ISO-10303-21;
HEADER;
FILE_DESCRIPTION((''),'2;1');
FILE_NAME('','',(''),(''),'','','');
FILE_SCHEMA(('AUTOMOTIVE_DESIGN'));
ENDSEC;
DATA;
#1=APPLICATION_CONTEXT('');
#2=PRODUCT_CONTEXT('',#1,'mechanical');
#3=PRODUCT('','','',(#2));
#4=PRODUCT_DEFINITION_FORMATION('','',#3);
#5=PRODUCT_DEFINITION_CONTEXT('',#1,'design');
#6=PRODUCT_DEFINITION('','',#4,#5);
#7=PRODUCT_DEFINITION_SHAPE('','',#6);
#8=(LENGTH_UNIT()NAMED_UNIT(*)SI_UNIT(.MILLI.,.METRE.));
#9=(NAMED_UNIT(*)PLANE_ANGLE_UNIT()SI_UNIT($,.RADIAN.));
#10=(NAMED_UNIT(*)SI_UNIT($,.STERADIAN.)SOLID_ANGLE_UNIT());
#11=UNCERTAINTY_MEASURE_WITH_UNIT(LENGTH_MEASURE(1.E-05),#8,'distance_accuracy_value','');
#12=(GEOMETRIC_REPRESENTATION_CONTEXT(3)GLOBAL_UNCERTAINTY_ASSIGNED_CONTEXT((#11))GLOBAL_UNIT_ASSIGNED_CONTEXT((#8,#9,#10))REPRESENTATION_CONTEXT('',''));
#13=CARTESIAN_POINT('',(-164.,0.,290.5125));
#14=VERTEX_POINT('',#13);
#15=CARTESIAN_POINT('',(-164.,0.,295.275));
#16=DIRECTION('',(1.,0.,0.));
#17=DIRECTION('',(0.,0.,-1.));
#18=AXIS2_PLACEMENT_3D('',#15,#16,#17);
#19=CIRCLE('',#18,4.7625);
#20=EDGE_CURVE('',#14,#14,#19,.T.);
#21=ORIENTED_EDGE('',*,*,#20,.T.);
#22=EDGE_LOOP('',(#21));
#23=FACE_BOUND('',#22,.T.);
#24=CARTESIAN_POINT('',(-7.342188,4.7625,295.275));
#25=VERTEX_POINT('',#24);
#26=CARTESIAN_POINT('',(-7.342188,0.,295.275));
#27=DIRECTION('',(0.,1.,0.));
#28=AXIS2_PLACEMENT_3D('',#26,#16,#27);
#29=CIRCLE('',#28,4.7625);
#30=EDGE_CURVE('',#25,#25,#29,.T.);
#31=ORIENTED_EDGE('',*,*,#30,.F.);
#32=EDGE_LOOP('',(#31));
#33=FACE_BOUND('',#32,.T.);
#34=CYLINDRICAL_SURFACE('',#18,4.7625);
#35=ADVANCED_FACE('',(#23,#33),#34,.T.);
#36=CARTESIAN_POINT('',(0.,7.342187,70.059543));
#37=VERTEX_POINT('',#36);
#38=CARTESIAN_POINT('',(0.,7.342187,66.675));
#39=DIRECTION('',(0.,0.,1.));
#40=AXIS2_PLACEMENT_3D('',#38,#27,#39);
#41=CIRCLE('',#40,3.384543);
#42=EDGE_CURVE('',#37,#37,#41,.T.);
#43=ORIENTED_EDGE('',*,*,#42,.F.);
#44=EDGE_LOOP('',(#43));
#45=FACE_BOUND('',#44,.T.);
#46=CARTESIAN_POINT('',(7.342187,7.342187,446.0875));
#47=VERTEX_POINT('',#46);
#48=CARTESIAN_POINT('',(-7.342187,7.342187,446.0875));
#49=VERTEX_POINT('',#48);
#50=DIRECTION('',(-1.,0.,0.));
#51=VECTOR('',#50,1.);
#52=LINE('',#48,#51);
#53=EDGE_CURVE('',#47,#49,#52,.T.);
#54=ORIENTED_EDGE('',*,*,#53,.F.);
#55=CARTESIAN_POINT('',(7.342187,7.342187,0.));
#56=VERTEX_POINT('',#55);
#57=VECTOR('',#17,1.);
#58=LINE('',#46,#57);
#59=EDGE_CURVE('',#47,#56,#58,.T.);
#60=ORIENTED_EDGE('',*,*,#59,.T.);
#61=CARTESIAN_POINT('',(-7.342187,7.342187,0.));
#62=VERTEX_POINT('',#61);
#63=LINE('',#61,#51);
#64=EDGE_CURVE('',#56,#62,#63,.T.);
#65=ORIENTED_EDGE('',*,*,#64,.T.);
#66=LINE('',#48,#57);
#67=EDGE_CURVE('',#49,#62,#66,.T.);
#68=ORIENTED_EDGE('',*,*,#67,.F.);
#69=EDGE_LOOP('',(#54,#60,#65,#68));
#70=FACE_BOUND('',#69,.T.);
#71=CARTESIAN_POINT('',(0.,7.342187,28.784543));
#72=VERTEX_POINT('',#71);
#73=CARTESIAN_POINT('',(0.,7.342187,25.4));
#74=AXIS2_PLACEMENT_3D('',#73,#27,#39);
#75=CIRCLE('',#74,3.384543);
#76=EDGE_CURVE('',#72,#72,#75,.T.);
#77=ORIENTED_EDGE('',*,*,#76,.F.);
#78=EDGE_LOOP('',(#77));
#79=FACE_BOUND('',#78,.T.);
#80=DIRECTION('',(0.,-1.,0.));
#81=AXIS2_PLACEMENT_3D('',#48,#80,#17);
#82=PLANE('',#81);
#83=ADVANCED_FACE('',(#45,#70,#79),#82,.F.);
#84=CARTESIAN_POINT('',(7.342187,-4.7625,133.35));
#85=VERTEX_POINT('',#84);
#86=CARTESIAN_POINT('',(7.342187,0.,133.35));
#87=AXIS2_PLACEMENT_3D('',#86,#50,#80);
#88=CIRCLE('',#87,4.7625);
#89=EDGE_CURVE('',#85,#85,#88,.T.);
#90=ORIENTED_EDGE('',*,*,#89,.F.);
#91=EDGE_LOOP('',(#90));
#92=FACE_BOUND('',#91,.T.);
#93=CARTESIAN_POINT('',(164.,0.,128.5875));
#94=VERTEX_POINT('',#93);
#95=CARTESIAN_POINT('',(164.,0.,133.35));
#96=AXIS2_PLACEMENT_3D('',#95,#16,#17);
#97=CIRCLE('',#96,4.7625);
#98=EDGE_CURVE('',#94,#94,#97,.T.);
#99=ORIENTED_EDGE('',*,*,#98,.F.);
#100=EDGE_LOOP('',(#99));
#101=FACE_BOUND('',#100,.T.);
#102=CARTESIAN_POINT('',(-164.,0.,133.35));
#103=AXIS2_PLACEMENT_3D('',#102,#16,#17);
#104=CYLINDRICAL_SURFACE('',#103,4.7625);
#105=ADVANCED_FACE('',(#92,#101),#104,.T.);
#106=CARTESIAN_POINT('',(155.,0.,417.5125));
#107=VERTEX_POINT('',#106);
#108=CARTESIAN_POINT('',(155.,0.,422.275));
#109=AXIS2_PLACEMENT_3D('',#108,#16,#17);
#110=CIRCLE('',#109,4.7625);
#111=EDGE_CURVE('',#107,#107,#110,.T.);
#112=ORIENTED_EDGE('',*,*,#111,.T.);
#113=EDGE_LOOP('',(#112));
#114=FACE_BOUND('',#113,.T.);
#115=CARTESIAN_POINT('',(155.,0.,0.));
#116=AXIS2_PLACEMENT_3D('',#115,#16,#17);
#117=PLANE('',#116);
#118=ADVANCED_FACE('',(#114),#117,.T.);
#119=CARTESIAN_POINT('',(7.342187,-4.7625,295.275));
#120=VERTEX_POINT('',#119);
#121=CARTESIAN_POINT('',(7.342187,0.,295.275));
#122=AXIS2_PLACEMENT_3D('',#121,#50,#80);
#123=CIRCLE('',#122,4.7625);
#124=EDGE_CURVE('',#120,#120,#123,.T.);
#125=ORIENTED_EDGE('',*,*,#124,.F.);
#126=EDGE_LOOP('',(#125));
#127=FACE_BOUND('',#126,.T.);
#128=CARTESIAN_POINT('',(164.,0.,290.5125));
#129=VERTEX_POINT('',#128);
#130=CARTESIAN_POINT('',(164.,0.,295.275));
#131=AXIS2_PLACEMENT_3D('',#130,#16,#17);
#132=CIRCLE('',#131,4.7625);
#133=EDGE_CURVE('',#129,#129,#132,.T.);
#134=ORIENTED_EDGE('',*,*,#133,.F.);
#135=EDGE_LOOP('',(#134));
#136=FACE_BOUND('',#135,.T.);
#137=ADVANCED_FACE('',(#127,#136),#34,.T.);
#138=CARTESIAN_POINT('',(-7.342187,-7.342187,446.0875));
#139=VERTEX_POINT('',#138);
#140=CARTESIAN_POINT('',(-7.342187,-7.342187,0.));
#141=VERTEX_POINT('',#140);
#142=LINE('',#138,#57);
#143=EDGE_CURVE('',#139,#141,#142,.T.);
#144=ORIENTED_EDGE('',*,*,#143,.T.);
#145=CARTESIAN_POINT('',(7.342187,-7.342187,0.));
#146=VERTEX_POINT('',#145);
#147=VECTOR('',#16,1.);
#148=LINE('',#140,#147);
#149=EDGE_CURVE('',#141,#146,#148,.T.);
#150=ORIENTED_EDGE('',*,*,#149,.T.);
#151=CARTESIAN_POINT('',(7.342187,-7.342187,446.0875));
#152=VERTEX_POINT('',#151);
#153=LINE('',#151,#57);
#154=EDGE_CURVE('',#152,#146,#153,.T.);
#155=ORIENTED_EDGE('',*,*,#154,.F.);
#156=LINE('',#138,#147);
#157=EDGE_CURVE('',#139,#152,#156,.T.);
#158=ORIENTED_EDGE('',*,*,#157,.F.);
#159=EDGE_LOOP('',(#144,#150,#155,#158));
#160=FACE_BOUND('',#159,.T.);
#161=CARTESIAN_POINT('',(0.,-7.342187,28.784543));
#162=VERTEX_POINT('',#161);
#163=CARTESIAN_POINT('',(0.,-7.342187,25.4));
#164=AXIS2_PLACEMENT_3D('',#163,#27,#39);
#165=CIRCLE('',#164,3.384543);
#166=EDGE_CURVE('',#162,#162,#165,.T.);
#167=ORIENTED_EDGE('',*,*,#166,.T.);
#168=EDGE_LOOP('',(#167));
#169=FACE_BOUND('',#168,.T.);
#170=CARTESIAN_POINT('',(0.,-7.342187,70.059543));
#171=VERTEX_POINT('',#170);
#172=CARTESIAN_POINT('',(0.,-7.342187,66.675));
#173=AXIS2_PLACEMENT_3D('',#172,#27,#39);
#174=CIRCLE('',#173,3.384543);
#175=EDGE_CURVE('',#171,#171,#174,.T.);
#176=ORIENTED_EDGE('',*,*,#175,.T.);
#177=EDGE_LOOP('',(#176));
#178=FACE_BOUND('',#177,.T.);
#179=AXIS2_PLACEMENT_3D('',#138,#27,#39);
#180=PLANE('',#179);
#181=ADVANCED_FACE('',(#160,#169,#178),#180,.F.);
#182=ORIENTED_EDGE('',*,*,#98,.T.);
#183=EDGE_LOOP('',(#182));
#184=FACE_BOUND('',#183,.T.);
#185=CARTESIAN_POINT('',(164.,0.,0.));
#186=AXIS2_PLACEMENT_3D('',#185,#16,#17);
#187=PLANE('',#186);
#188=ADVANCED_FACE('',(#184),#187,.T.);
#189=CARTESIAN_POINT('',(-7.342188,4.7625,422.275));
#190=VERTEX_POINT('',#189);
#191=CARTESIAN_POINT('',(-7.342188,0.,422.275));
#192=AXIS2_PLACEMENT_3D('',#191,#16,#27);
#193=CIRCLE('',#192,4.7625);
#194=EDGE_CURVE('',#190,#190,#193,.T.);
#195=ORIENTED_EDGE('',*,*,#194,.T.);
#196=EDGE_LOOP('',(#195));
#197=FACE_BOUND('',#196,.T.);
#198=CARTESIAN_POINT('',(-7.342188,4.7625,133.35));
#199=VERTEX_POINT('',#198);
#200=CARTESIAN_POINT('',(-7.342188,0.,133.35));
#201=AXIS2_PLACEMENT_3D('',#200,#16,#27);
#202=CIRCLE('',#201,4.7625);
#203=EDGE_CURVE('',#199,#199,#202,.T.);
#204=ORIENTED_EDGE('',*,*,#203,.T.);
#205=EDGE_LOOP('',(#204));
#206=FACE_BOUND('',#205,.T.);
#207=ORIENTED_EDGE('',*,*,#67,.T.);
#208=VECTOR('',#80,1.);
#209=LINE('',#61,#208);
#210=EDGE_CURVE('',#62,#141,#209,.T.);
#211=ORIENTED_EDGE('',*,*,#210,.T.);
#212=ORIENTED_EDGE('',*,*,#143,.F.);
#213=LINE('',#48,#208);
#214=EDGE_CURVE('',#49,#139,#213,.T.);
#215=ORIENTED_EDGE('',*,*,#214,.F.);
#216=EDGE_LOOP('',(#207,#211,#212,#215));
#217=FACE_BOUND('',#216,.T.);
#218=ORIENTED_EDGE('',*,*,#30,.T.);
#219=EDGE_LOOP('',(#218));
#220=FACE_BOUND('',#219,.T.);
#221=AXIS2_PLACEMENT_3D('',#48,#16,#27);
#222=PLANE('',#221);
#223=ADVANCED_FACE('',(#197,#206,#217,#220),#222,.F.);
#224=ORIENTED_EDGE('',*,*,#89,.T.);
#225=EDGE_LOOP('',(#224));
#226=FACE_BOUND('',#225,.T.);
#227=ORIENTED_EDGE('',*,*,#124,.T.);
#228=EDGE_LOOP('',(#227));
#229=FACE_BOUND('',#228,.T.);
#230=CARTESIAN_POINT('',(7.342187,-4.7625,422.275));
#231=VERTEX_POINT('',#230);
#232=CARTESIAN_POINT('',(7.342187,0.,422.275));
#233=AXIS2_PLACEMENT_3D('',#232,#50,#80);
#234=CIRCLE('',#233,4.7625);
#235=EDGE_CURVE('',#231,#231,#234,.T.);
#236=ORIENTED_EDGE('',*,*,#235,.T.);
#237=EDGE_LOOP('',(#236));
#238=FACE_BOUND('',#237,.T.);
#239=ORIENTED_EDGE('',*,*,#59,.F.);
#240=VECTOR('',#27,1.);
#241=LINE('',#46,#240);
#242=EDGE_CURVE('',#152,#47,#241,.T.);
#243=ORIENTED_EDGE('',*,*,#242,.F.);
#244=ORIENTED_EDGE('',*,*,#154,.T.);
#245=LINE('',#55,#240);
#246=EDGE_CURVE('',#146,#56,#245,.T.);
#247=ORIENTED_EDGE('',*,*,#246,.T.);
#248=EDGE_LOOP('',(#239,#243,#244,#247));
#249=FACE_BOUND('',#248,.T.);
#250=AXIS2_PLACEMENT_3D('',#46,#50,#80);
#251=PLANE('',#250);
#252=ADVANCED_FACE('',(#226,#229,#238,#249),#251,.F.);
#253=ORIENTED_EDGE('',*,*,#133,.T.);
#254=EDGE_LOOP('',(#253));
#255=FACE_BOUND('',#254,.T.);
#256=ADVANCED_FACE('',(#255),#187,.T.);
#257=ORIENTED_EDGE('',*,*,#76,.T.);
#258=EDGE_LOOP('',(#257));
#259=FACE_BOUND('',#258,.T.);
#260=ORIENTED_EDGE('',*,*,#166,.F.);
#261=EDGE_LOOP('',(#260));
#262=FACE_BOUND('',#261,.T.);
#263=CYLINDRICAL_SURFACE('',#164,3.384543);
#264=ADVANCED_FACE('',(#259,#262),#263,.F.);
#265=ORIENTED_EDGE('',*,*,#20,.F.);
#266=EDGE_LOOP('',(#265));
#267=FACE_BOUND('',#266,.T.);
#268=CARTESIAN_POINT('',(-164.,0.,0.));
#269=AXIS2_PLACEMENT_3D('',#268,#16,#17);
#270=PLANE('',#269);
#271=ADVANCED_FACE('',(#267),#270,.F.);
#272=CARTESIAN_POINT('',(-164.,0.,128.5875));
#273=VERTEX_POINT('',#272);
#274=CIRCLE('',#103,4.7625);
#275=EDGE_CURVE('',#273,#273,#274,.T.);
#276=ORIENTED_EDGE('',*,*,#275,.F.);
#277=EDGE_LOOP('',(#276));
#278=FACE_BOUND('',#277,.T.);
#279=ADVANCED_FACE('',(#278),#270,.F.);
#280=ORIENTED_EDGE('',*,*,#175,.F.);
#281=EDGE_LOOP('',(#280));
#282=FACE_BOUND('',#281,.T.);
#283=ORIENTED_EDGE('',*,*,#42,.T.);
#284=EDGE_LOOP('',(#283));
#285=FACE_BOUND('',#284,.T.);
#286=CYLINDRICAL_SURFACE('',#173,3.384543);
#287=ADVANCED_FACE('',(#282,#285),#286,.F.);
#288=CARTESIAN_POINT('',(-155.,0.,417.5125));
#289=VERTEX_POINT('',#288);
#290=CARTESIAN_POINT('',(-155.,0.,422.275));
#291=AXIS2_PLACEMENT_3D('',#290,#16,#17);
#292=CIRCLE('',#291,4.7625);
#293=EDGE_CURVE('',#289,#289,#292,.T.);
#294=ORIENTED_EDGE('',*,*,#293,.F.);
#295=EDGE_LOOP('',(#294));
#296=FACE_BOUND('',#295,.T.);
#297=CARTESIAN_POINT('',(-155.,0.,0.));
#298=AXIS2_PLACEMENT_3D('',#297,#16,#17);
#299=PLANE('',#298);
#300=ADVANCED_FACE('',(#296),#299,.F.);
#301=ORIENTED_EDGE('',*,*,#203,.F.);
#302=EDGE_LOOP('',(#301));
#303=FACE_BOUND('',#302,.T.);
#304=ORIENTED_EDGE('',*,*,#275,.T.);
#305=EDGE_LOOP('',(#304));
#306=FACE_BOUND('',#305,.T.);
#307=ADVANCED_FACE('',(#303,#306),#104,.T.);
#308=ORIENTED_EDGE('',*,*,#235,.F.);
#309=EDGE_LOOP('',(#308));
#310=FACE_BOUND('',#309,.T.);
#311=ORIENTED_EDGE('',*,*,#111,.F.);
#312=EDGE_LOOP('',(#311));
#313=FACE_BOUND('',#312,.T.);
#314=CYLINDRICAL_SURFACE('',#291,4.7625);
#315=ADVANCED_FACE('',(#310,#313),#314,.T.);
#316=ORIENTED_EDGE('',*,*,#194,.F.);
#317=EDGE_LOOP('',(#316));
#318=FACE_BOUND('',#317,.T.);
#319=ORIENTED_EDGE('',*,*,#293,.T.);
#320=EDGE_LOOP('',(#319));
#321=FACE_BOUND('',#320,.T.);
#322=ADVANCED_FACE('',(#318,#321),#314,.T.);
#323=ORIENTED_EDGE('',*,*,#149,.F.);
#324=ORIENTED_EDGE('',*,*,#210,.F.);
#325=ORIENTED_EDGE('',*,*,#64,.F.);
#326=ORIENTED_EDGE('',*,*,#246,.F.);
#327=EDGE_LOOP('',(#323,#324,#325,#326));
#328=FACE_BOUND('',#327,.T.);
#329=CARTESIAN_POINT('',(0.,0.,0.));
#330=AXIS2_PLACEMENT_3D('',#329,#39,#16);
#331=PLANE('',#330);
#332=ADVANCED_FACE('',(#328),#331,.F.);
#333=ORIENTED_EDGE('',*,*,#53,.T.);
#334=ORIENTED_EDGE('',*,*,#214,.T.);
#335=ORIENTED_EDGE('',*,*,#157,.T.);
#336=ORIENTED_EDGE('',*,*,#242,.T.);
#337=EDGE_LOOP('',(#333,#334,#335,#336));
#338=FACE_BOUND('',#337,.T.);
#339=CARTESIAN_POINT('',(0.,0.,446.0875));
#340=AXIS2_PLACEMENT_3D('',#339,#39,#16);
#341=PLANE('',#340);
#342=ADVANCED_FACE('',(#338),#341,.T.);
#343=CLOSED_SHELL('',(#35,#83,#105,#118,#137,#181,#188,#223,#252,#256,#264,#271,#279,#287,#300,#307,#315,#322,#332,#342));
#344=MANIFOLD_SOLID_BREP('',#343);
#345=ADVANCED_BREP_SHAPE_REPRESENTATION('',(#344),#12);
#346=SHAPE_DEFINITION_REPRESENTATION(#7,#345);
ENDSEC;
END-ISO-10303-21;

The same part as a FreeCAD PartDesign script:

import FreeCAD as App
import Part
import Sketcher
Q = App.Units.Quantity


def add_polygon(sketch, points):
    """Adds a closed chain of lines whose ends are joined by coincident constraints."""
    first, n = sketch.GeometryCount, len(points)
    for a, b in zip(points, points[1:] + points[:1]):
        sketch.addGeometry(Part.LineSegment(App.Vector(*a, 0), App.Vector(*b, 0)), False)
    for i in range(n):
        sketch.addConstraint(Sketcher.Constraint("Coincident", first + i, 2, first + (i + 1) % n, 1))

doc = App.newDocument("Part")
body = doc.addObject("PartDesign::Body", "Body")

# Sketch on XY plane
sketch1 = body.newObject("Sketcher::SketchObject", "Sketch")
sketch1.AttachmentSupport = (doc.getObject("XY_Plane"), [""])
sketch1.MapMode = "FlatFace"
add_polygon(sketch1, [(-7, 7), (-7, -7), (7, -7), (7, 7)])  # lines 0-3
sketch1.addConstraint([
    Sketcher.Constraint("Vertical", 0),
    Sketcher.Constraint("Horizontal", 1),
    Sketcher.Constraint("Vertical", 2),
    Sketcher.Constraint("Horizontal", 3),
    Sketcher.Constraint("Symmetric", 0, 2, 2, 2, -1, 1),
    Sketcher.Constraint("Equal", 3, 0),
    Sketcher.Constraint("DistanceX", 1, 1, 1, 2, Q("0.578125 in")),
])
pad1 = body.newObject("PartDesign::Pad", "Pad")
pad1.Profile = sketch1
pad1.Length = Q("17.5625 in")

# Sketch on XZ plane
sketch2 = body.newObject("Sketcher::SketchObject", "Sketch001")
sketch2.AttachmentSupport = (doc.getObject("XZ_Plane"), [""])
sketch2.MapMode = "FlatFace"
sketch2.AttachmentOffset = App.Placement(App.Vector(0, 0, -7.342187), App.Rotation())
sketch2.addGeometry([
    Part.Circle(App.Vector(0, 25.4, 0), App.Vector(0, 0, 1), 3.4),
    Part.Circle(App.Vector(0, 66.7, 0), App.Vector(0, 0, 1), 3.4),
], False)
sketch2.addConstraint([
    Sketcher.Constraint("Equal", 0, 1),
    Sketcher.Constraint("PointOnObject", 0, 3, -2),
    Sketcher.Constraint("PointOnObject", 1, 3, -2),
    Sketcher.Constraint("DistanceY", -1, 1, 0, 3, Q("1 in")),
    Sketcher.Constraint("DistanceY", -1, 1, 1, 3, Q("2.625 in")),
    Sketcher.Constraint("Diameter", 0, 6.769086),
])
pocket1 = body.newObject("PartDesign::Pocket", "Pocket")
pocket1.Profile = sketch2
pocket1.Type = "ThroughAll"
pocket1.Reversed = True

# Sketch on YZ plane
sketch3 = body.newObject("Sketcher::SketchObject", "Sketch002")
sketch3.AttachmentSupport = (doc.getObject("YZ_Plane"), [""])
sketch3.MapMode = "FlatFace"
sketch3.addGeometry(Part.Circle(App.Vector(0, 422.3, 0), App.Vector(0, 0, 1), 4.8), False)
sketch3.addConstraint([
    Sketcher.Constraint("PointOnObject", 0, 3, -2),
    Sketcher.Constraint("Diameter", 0, Q("0.375 in")),
    Sketcher.Constraint("DistanceY", -1, 1, 0, 3, Q("16.625 in")),
])
pad2 = body.newObject("PartDesign::Pad", "Pad001")
pad2.Profile = sketch3
pad2.Type = "TwoLengths"
pad2.Length = 155
pad2.Length2 = 155

# Sketch on YZ plane
sketch4 = body.newObject("Sketcher::SketchObject", "Sketch003")
sketch4.AttachmentSupport = (doc.getObject("YZ_Plane"), [""])
sketch4.MapMode = "FlatFace"
sketch4.addGeometry(Part.Circle(App.Vector(0, 133.3, 0), App.Vector(0, 0, 1), 4.8), False)
sketch4.addConstraint([
    Sketcher.Constraint("PointOnObject", 0, 3, -2),
    Sketcher.Constraint("Diameter", 0, Q("0.375 in")),
    Sketcher.Constraint("DistanceY", -1, 1, 0, 3, Q("5.25 in")),
])
pad3 = body.newObject("PartDesign::Pad", "Pad002")
pad3.Profile = sketch4
pad3.Type = "TwoLengths"
pad3.Length = 164
pad3.Length2 = 164

# Sketch on YZ plane
sketch5 = body.newObject("Sketcher::SketchObject", "Sketch004")
sketch5.AttachmentSupport = (doc.getObject("YZ_Plane"), [""])
sketch5.MapMode = "FlatFace"
sketch5.addGeometry(Part.Circle(App.Vector(0, 295.3, 0), App.Vector(0, 0, 1), 4.8), False)
sketch5.addConstraint([
    Sketcher.Constraint("PointOnObject", 0, 3, -2),
    Sketcher.Constraint("Diameter", 0, Q("0.375 in")),
    Sketcher.Constraint("DistanceY", -1, 1, 0, 3, Q("11.625 in")),
])
pad4 = body.newObject("PartDesign::Pad", "Pad003")
pad4.Profile = sketch5
pad4.Type = "TwoLengths"
pad4.Length = 164
pad4.Length2 = 164

doc.recompute()
